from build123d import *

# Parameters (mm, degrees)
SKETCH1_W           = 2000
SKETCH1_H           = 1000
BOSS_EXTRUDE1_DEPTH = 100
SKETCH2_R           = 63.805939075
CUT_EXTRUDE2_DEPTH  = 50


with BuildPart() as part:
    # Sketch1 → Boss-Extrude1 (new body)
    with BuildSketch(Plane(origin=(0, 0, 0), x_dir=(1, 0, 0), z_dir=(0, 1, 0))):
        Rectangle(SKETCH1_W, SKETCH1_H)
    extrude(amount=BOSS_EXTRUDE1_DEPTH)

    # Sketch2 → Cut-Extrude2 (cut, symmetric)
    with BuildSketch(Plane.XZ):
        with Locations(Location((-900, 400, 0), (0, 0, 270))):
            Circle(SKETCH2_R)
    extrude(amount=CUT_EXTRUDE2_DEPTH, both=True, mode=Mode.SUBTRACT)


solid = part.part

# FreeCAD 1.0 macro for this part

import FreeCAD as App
import Part
import Sketcher


def add_polygon(sketch, points):
    """Adds a closed chain of lines whose ends are joined by coincident constraints."""
    first, n = sketch.GeometryCount, len(points)
    for a, b in zip(points, points[1:] + points[:1]):
        sketch.addGeometry(Part.LineSegment(App.Vector(*a, 0), App.Vector(*b, 0)), False)
    for i in range(n):
        sketch.addConstraint(Sketcher.Constraint("Coincident", first + i, 2, first + (i + 1) % n, 1))

doc = App.newDocument("Part")
body = doc.addObject("PartDesign::Body", "Body")

sketch1 = doc.addObject("Sketcher::SketchObject", "Sketch")
body.addObject(sketch1)
sketch1.AttachmentSupport = (doc.XZ_Plane, [""])
sketch1.MapMode = "FlatFace"
add_polygon(sketch1, [(-1000, -500), (-1000, 500), (1000, 500), (1000, -500)])
sketch1.addConstraint([
    Sketcher.Constraint("Vertical", 0),
    Sketcher.Constraint("Horizontal", 1),
    Sketcher.Constraint("Vertical", 2),
    Sketcher.Constraint("Horizontal", 3),
    Sketcher.Constraint("Symmetric", 0, 2, 2, 2, -1, 1),
    Sketcher.Constraint("DistanceX", 1, 1, 1, 2, 2000.0),
    Sketcher.Constraint("DistanceY", 0, 1, 0, 2, 1000.0),
])
pad1 = doc.addObject("PartDesign::Pad", "Pad")
body.addObject(pad1)
pad1.Profile = sketch1
pad1.Length = 100
pad1.Reversed = True

sketch2 = doc.addObject("Sketcher::SketchObject", "Sketch001")
body.addObject(sketch2)
sketch2.AttachmentSupport = (doc.XZ_Plane, [""])
sketch2.MapMode = "FlatFace"
sketch2.addGeometry(Part.Circle(App.Vector(-900, 400, 0), App.Vector(0, 0, 1), 63.805939), False)
sketch2.addConstraint([
    Sketcher.Constraint("DistanceX", 0, 3, -1, 1, 900.0),
    Sketcher.Constraint("DistanceY", -1, 1, 0, 3, 400.0),
    Sketcher.Constraint("Diameter", 0, 127.611878),
])
pocket1 = doc.addObject("PartDesign::Pocket", "Pocket")
body.addObject(pocket1)
pocket1.Profile = sketch2
pocket1.Length = 100
pocket1.Midplane = True

doc.recompute()
